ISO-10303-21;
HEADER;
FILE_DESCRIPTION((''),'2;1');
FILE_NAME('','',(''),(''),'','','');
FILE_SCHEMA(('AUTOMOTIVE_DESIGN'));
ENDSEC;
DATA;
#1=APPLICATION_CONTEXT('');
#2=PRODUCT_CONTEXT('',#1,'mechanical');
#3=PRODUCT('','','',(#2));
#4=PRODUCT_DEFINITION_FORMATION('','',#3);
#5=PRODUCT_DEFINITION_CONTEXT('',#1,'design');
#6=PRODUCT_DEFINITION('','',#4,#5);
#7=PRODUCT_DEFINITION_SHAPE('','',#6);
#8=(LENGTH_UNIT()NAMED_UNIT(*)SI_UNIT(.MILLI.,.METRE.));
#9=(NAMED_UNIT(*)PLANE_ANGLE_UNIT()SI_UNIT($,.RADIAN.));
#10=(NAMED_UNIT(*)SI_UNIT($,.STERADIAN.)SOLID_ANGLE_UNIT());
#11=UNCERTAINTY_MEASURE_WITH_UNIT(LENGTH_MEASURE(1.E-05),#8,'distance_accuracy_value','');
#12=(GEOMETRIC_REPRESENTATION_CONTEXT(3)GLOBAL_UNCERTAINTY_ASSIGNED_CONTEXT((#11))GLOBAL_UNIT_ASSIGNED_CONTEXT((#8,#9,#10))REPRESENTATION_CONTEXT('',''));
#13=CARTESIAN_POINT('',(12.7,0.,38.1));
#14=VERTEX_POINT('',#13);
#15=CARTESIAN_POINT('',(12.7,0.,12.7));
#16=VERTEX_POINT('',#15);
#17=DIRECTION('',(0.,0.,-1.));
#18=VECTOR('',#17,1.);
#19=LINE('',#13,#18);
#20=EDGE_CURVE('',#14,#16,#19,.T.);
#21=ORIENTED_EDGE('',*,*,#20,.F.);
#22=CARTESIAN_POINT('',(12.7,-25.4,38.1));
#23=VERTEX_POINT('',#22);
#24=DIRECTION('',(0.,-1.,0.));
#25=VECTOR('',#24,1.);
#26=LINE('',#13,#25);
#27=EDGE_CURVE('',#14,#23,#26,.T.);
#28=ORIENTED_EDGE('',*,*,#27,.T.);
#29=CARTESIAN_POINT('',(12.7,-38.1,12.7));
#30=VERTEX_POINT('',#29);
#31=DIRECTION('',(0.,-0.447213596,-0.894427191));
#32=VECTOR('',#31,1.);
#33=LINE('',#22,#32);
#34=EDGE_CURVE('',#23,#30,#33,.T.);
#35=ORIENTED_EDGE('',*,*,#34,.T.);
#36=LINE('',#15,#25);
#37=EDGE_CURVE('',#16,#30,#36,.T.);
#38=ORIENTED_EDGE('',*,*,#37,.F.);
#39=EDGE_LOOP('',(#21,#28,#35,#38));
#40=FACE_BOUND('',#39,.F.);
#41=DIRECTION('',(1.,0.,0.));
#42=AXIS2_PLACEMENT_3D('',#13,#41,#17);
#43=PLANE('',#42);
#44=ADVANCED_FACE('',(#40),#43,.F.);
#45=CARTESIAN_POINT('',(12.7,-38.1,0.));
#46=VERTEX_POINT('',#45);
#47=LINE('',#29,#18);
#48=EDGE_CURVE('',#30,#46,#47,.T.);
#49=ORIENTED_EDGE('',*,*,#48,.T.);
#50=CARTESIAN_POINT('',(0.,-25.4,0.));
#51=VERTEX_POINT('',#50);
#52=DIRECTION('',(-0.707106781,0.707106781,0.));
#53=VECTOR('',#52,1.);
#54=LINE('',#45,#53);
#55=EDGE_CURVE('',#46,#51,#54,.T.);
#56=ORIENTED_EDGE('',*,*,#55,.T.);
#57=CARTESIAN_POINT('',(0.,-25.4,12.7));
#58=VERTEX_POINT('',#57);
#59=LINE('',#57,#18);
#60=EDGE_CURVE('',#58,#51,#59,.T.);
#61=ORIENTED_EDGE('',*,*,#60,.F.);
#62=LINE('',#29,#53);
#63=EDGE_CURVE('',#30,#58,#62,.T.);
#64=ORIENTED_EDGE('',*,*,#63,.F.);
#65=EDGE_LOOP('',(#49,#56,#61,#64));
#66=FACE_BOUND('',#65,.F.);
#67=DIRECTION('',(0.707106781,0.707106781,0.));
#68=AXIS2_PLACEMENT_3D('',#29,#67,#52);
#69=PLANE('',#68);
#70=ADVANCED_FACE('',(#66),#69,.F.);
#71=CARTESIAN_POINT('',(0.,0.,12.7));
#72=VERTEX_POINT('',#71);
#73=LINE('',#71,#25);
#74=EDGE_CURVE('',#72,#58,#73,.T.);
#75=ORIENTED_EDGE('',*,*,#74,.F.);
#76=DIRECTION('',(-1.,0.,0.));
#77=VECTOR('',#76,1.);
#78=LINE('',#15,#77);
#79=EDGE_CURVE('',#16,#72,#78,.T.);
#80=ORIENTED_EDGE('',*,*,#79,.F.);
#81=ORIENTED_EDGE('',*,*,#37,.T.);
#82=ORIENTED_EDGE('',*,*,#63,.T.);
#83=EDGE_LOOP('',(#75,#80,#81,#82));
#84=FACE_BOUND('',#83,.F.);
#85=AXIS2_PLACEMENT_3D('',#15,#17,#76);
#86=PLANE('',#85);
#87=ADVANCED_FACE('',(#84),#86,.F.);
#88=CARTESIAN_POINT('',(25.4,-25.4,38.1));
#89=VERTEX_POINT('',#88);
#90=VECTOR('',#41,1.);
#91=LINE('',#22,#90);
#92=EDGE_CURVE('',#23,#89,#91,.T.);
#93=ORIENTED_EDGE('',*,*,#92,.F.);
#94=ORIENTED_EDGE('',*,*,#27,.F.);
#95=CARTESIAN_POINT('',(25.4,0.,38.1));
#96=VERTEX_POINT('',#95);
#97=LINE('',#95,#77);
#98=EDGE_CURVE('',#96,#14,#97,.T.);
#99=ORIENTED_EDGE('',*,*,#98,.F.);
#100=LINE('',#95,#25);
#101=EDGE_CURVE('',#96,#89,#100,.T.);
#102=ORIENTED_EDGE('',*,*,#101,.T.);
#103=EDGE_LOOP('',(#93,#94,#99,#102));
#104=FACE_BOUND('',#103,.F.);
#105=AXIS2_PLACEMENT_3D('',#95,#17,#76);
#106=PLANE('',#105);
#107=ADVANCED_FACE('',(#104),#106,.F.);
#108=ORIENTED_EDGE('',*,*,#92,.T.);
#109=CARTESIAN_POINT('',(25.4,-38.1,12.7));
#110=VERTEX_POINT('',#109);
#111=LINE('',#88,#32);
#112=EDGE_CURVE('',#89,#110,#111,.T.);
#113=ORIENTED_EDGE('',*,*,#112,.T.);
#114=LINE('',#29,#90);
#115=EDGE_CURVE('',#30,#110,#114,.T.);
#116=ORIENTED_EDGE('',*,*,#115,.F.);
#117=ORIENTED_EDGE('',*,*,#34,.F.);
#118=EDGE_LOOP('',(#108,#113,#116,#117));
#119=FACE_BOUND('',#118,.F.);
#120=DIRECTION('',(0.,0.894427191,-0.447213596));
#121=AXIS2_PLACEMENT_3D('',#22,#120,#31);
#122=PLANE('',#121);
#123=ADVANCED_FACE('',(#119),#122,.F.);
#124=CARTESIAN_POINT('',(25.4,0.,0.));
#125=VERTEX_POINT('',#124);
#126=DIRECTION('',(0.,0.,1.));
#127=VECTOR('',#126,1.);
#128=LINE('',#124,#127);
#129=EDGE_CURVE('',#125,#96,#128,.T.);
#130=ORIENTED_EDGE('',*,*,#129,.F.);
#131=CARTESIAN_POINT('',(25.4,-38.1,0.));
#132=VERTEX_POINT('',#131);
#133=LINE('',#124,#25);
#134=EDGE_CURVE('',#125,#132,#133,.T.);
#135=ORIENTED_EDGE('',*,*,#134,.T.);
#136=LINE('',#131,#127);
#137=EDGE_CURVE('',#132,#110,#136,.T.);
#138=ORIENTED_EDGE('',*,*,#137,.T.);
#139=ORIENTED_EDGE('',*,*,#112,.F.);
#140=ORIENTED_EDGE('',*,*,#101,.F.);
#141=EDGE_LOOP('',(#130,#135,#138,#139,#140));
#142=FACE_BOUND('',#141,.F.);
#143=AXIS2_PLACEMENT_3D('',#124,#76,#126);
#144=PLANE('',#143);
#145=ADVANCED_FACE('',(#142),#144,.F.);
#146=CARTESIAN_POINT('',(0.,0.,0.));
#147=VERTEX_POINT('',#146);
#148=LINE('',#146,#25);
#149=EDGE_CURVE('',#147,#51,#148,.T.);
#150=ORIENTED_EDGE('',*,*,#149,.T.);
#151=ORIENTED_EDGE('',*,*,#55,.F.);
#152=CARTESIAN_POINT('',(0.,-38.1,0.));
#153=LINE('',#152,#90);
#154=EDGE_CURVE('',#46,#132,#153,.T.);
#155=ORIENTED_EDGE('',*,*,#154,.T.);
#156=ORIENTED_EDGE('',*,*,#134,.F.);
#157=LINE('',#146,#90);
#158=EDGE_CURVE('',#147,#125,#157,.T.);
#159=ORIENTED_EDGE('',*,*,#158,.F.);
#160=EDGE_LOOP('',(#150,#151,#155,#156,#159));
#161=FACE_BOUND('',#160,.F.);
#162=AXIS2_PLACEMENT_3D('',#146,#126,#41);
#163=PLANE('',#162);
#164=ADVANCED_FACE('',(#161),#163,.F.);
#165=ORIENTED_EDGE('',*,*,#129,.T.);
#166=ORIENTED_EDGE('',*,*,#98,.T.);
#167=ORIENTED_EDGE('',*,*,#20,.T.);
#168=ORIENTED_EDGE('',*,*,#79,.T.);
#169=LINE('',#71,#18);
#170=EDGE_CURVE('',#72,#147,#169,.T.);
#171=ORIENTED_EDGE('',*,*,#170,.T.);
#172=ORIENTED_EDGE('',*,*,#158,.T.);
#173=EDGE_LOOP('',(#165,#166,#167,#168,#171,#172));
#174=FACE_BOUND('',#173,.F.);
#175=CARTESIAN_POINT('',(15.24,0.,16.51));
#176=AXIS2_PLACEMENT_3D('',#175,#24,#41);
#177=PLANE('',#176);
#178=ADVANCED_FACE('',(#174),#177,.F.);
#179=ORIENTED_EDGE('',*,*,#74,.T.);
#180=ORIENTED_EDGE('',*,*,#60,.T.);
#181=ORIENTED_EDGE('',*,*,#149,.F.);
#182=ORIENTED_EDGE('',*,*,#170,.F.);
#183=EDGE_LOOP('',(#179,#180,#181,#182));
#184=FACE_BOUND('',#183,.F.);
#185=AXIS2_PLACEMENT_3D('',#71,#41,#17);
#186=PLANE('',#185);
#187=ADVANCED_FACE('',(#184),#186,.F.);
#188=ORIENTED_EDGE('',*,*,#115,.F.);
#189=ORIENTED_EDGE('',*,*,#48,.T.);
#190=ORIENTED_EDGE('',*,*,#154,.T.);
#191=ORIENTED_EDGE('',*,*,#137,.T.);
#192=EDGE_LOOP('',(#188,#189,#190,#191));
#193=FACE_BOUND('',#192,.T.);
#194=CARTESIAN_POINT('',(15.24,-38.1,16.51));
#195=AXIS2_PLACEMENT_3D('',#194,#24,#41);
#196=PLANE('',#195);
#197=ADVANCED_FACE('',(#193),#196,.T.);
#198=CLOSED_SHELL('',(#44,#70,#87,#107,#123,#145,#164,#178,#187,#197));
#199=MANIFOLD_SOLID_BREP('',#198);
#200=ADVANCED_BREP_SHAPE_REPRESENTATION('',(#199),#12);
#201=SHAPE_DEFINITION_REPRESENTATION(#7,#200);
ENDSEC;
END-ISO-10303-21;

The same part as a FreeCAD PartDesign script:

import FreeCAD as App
import Part
import Sketcher
from FreeCAD import Vector
Q = App.Units.Quantity


def add_polygon(sketch, points):
    """Adds a closed chain of lines whose ends are joined by coincident constraints."""
    first, n = sketch.GeometryCount, len(points)
    for a, b in zip(points, points[1:] + points[:1]):
        sketch.addGeometry(Part.LineSegment(App.Vector(*a, 0), App.Vector(*b, 0)), False)
    for i in range(n):
        sketch.addConstraint(Sketcher.Constraint("Coincident", first + i, 2, first + (i + 1) % n, 1))

doc = App.newDocument("Part")
body = doc.addObject("PartDesign::Body", "Body")

# Sketch on XZ plane
sketch1 = body.newObject("Sketcher::SketchObject", "Sketch")
sketch1.AttachmentSupport = (doc.getObject("XZ_Plane"), [""])
sketch1.MapMode = "FlatFace"
add_polygon(sketch1, [(0, 13), (0, 0), (25, 0), (25, 38), (13, 38), (13, 13)])  # lines 0-5
sketch1.addConstraint([
    Sketcher.Constraint("Vertical", 0),
    Sketcher.Constraint("Horizontal", 1),
    Sketcher.Constraint("Vertical", 2),
    Sketcher.Constraint("Horizontal", 3),
    Sketcher.Constraint("Vertical", 4),
    Sketcher.Constraint("Horizontal", 5),
    Sketcher.Constraint("Coincident", 0, 2, -1, 1),
    Sketcher.Constraint("Equal", 3, 5),
    Sketcher.Constraint("Equal", 5, 0),
    Sketcher.Constraint("Equal", 1, 4),
    Sketcher.Constraint("DistanceX", 1, 1, 1, 2, Q("1 in")),
])
pad1 = body.newObject("PartDesign::Pad", "Pad")
pad1.Profile = sketch1
pad1.Length = Q("1.5 in")

# Sketch on XZ plane
sketch2 = body.newObject("Sketcher::SketchObject", "Sketch001")
sketch2.AttachmentSupport = (doc.getObject("XZ_Plane"), [""])
sketch2.MapMode = "FlatFace"
sketch2.AttachmentOffset = App.Placement(Vector(0, 0, 1.5 * 25.4), App.Rotation())
add_polygon(sketch2, [(13, 38), (0, 38), (13, 13)])  # lines 0-2
sketch2.addConstraint([
    Sketcher.Constraint("Horizontal", 0),
    Sketcher.Constraint("Vertical", 2),
    Sketcher.Constraint("PointOnObject", 0, 2, -2),
    Sketcher.Constraint("DistanceY", 2, 1, 2, 2, Q("1 in")),
    Sketcher.Constraint("DistanceX", 0, 2, 0, 1, Q("0.5 in")),
    Sketcher.Constraint("DistanceY", -1, 1, 0, 2, Q("1.5 in")),
])
pocket1 = body.newObject("PartDesign::Pocket", "Pocket")
pocket1.Profile = sketch2
pocket1.Length = Q("0.5 in")

# Sketch on YZ plane
sketch3 = body.newObject("Sketcher::SketchObject", "Sketch002")
sketch3.AttachmentSupport = (doc.getObject("YZ_Plane"), [""])
sketch3.MapMode = "FlatFace"
sketch3.AttachmentOffset = App.Placement(Vector(0, 0, 0.5 * 25.4), App.Rotation())
add_polygon(sketch3, [(-38, 38), (-25, 38), (-38, 13)])  # lines 0-2
sketch3.addConstraint([
    Sketcher.Constraint("Horizontal", 0),
    Sketcher.Constraint("Vertical", 2),
    Sketcher.Constraint("DistanceY", 2, 1, 2, 2, Q("1 in")),
    Sketcher.Constraint("DistanceX", 0, 1, 0, 2, Q("0.5 in")),
    Sketcher.Constraint("DistanceX", 0, 2, -1, 1, Q("1 in")),
    Sketcher.Constraint("DistanceY", -1, 1, 0, 2, Q("1.5 in")),
])
pocket2 = body.newObject("PartDesign::Pocket", "Pocket001")
pocket2.Profile = sketch3
pocket2.Length = Q("0.5 in")
pocket2.Reversed = True

# Sketch on XY plane
sketch4 = body.newObject("Sketcher::SketchObject", "Sketch003")
sketch4.AttachmentSupport = (doc.getObject("XY_Plane"), [""])
sketch4.MapMode = "FlatFace"
sketch4.AttachmentOffset = App.Placement(Vector(0, 0, 0.5 * 25.4), App.Rotation())
add_polygon(sketch4, [(13, -38), (0, -25), (0, -38)])  # lines 0-2
sketch4.addConstraint([
    Sketcher.Constraint("Vertical", 1),
    Sketcher.Constraint("Horizontal", 2),
    Sketcher.Constraint("PointOnObject", 0, 2, -2),
    Sketcher.Constraint("Equal", 2, 1),
    Sketcher.Constraint("DistanceX", 2, 1, 2, 2, Q("0.5 in")),
    Sketcher.Constraint("DistanceY", 0, 2, -1, 1, Q("1 in")),
])
pocket3 = body.newObject("PartDesign::Pocket", "Pocket002")
pocket3.Profile = sketch4
pocket3.Length = Q("0.5 in")

doc.recompute()
